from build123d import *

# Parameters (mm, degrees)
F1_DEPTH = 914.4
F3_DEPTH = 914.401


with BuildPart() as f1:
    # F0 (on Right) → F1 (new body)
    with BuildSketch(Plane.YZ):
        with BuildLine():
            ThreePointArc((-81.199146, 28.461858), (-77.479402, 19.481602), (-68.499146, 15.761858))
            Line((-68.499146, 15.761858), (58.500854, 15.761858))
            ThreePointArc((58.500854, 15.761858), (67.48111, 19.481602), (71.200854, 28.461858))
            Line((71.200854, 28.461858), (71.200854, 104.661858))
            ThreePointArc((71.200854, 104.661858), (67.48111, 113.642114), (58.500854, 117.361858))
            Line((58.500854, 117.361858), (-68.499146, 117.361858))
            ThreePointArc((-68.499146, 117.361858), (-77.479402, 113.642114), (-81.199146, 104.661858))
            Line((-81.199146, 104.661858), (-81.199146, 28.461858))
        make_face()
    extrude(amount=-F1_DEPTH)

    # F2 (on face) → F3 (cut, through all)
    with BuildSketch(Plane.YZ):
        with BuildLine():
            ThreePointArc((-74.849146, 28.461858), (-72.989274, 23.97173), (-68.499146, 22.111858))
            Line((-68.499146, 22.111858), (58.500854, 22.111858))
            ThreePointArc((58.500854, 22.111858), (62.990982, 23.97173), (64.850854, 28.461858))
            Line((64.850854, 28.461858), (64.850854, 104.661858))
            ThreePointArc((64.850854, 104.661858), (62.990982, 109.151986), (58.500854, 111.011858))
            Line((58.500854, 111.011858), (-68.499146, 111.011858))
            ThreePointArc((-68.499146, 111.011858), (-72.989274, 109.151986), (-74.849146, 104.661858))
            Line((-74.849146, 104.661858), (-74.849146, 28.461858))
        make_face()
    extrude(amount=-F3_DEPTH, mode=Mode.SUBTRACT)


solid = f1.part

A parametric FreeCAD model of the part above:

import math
import FreeCAD as App
import Part
import Sketcher

V = App.Vector
Q = App.Units.Quantity

doc = App.newDocument("Part")
params = doc.addObject("Spreadsheet::Sheet", "Params")
for row, (alias, value) in enumerate([
    ("sketch1_radius", "0.5 in"),
    ("sketch1_width", "5 in"),
    ("sketch1_height", "3 in"),
    ("pad1_length", "36 in"),
    ("sketch2_width", "5 in"),
    ("sketch2_height", "3 in"),
    ("sketch2_radius", "0.25 in"),
], start=1):
    params.set(f"A{row}", alias)
    params.set(f"B{row}", "=" + value)
    params.setAlias(f"B{row}", alias)

body = doc.addObject("PartDesign::Body", "Body")

# Sketch on YZ plane
sketch1 = doc.addObject("Sketcher::SketchObject", "Sketch")
body.addObject(sketch1)
sketch1.AttachmentSupport = (doc.YZ_Plane, [""])
sketch1.MapMode = "FlatFace"
sketch1.addGeometry([
    Part.ArcOfCircle(Part.Circle(V(-68, 28, 0), V(0, 0, 1), 13), math.radians(-180), math.radians(-90)),  # 0
    Part.LineSegment(V(-68, 16, 0), V(59, 16, 0)),  # 1
    Part.ArcOfCircle(Part.Circle(V(59, 28, 0), V(0, 0, 1), 13), math.radians(-90), math.radians(0)),  # 2
    Part.LineSegment(V(71, 28, 0), V(71, 105, 0)),  # 3
    Part.ArcOfCircle(Part.Circle(V(59, 105, 0), V(0, 0, 1), 13), math.radians(0), math.radians(90)),  # 4
    Part.LineSegment(V(59, 117, 0), V(-68, 117, 0)),  # 5
    Part.ArcOfCircle(Part.Circle(V(-68, 105, 0), V(0, 0, 1), 13), math.radians(90), math.radians(180)),  # 6
    Part.LineSegment(V(-81, 105, 0), V(-81, 28, 0)),  # 7
], False)
sketch1.addConstraint([
    Sketcher.Constraint("Tangent", 0, 2, 1, 1),
    Sketcher.Constraint("Tangent", 1, 2, 2, 1),
    Sketcher.Constraint("Tangent", 2, 2, 3, 1),
    Sketcher.Constraint("Tangent", 3, 2, 4, 1),
    Sketcher.Constraint("Tangent", 4, 2, 5, 1),
    Sketcher.Constraint("Tangent", 5, 2, 6, 1),
    Sketcher.Constraint("Tangent", 6, 2, 7, 1),
    Sketcher.Constraint("Tangent", 7, 2, 0, 1),
    Sketcher.Constraint("Horizontal", 1),
    Sketcher.Constraint("Vertical", 3),
    Sketcher.Constraint("Horizontal", 5),
    Sketcher.Constraint("Vertical", 7),
    Sketcher.Constraint("Equal", 0, 2),
    Sketcher.Constraint("Equal", 2, 4),
    Sketcher.Constraint("Equal", 4, 6),
    Sketcher.Constraint("Radius", 0, Q("0.5 in")),
    Sketcher.Constraint("DistanceX", 1, 1, 1, 2, Q("5 in")),
    Sketcher.Constraint("DistanceY", 3, 1, 3, 2, Q("3 in")),
    Sketcher.Constraint("DistanceY", -1, 1, 0, 3, 28.461858),
    Sketcher.Constraint("DistanceX", 0, 3, -1, 1, 68.499146),
])
sketch1.setExpression("Constraints[15]", "Params.sketch1_radius")
sketch1.setExpression("Constraints[16]", "Params.sketch1_width")
sketch1.setExpression("Constraints[17]", "Params.sketch1_height")
pad1 = doc.addObject("PartDesign::Pad", "Pad")
body.addObject(pad1)
pad1.Profile = sketch1
pad1.setExpression("Length", "Params.pad1_length")
pad1.Reversed = True

# Sketch on YZ plane
sketch2 = doc.addObject("Sketcher::SketchObject", "Sketch001")
body.addObject(sketch2)
sketch2.AttachmentSupport = (doc.YZ_Plane, [""])
sketch2.MapMode = "FlatFace"
sketch2.addGeometry([
    Part.ArcOfCircle(Part.Circle(V(-68, 28, 0), V(0, 0, 1), 6), math.radians(-180), math.radians(-90)),  # 0
    Part.LineSegment(V(-68, 22, 0), V(59, 22, 0)),  # 1
    Part.ArcOfCircle(Part.Circle(V(59, 28, 0), V(0, 0, 1), 6), math.radians(-90), math.radians(0)),  # 2
    Part.LineSegment(V(65, 28, 0), V(65, 105, 0)),  # 3
    Part.ArcOfCircle(Part.Circle(V(59, 105, 0), V(0, 0, 1), 6), math.radians(0), math.radians(90)),  # 4
    Part.LineSegment(V(59, 111, 0), V(-68, 111, 0)),  # 5
    Part.ArcOfCircle(Part.Circle(V(-68, 105, 0), V(0, 0, 1), 6), math.radians(90), math.radians(180)),  # 6
    Part.LineSegment(V(-75, 105, 0), V(-75, 28, 0)),  # 7
], False)
sketch2.addConstraint([
    Sketcher.Constraint("Tangent", 0, 2, 1, 1),
    Sketcher.Constraint("Tangent", 1, 2, 2, 1),
    Sketcher.Constraint("Tangent", 2, 2, 3, 1),
    Sketcher.Constraint("Tangent", 3, 2, 4, 1),
    Sketcher.Constraint("Tangent", 4, 2, 5, 1),
    Sketcher.Constraint("Tangent", 5, 2, 6, 1),
    Sketcher.Constraint("Tangent", 6, 2, 7, 1),
    Sketcher.Constraint("Tangent", 7, 2, 0, 1),
    Sketcher.Constraint("Horizontal", 1),
    Sketcher.Constraint("Vertical", 3),
    Sketcher.Constraint("Horizontal", 5),
    Sketcher.Constraint("Vertical", 7),
    Sketcher.Constraint("Equal", 0, 2),
    Sketcher.Constraint("Equal", 2, 4),
    Sketcher.Constraint("Equal", 4, 6),
    Sketcher.Constraint("DistanceX", 1, 1, 1, 2, Q("5 in")),
    Sketcher.Constraint("DistanceY", 3, 1, 3, 2, Q("3 in")),
    Sketcher.Constraint("Radius", 0, Q("0.25 in")),
    Sketcher.Constraint("DistanceY", -1, 1, 0, 3, 28.461858),
    Sketcher.Constraint("DistanceX", 0, 3, -1, 1, 68.499146),
])
sketch2.setExpression("Constraints[15]", "Params.sketch2_width")
sketch2.setExpression("Constraints[16]", "Params.sketch2_height")
sketch2.setExpression("Constraints[17]", "Params.sketch2_radius")
pocket1 = doc.addObject("PartDesign::Pocket", "Pocket")
body.addObject(pocket1)
pocket1.Profile = sketch2
pocket1.Type = "ThroughAll"

doc.recompute()
